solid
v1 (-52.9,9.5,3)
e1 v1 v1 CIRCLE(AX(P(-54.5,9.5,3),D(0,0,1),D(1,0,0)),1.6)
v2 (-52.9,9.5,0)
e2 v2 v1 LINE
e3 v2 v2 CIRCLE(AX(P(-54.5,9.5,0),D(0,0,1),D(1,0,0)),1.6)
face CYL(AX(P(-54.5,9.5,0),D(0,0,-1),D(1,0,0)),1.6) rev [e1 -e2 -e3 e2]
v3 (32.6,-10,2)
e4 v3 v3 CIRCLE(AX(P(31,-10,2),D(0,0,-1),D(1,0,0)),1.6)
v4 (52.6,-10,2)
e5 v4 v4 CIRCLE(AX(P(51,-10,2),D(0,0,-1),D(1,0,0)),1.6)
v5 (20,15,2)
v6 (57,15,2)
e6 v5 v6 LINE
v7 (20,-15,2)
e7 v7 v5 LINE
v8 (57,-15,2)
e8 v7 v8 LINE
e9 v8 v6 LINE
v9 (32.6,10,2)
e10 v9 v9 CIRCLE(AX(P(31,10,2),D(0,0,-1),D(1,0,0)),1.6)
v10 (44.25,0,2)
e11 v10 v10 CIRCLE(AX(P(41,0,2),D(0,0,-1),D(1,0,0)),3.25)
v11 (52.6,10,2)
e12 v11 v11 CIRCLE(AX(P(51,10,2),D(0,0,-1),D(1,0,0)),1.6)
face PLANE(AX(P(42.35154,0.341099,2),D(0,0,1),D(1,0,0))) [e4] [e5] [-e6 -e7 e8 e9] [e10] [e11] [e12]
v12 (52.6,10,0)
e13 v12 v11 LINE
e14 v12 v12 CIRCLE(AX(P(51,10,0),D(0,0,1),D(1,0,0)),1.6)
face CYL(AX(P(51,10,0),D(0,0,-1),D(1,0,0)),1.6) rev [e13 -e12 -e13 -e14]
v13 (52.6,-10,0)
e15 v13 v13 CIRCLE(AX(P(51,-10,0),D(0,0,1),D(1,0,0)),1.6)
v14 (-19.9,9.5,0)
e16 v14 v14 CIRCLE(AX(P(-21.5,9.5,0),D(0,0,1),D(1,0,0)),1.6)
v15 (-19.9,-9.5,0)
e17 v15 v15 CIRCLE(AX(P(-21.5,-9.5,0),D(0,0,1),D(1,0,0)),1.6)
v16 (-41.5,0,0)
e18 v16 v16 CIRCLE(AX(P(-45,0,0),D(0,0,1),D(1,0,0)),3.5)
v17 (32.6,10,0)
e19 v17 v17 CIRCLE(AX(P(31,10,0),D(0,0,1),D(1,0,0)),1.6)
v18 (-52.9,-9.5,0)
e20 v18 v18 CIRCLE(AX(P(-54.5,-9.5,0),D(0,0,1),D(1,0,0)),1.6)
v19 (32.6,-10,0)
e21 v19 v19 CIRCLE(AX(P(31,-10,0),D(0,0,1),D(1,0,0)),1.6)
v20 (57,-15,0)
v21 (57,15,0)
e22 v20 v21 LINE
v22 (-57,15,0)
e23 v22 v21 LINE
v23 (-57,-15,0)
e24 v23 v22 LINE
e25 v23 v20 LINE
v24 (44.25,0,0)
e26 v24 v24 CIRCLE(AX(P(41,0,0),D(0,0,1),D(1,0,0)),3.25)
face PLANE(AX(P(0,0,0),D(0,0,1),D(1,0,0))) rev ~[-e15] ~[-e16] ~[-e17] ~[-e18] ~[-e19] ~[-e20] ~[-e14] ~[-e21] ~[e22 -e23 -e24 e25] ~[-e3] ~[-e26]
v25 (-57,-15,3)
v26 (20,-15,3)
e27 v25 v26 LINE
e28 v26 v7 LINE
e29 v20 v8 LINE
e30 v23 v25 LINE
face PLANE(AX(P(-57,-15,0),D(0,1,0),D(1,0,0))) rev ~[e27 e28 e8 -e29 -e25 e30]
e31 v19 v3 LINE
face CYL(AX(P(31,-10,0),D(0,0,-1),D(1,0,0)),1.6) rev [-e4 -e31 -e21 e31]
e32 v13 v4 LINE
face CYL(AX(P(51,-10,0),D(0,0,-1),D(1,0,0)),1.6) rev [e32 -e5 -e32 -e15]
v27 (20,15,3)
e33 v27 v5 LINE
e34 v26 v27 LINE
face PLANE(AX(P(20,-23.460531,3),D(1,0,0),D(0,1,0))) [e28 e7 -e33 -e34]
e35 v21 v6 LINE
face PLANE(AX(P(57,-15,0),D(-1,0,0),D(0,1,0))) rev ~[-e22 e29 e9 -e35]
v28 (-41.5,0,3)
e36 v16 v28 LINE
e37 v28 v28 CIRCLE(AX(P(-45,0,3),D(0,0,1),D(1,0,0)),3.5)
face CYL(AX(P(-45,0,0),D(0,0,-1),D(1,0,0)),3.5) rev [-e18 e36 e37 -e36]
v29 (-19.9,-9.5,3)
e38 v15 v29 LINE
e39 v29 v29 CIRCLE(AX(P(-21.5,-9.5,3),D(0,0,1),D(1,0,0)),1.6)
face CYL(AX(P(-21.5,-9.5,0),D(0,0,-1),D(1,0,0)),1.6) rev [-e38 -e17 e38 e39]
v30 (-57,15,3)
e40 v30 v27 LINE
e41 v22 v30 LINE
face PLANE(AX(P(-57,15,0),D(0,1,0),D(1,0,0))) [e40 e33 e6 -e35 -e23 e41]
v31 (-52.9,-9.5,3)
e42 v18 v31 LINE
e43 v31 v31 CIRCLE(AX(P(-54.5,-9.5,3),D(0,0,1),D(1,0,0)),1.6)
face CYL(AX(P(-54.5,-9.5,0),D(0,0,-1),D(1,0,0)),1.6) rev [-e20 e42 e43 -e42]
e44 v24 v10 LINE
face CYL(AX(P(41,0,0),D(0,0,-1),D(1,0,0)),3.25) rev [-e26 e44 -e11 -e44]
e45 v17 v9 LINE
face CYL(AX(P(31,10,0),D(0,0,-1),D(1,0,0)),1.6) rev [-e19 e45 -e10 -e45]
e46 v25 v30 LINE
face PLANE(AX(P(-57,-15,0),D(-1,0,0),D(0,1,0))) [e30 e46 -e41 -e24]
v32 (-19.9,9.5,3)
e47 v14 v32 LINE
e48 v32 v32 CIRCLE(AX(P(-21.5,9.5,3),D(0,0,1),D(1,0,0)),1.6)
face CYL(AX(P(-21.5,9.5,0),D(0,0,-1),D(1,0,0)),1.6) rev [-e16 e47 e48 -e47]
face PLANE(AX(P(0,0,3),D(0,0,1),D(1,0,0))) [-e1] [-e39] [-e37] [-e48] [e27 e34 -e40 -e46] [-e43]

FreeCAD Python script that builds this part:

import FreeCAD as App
import Part
import Sketcher
from FreeCAD import Vector
Q = App.Units.Quantity


def add_polygon(sketch, points):
    """Adds a closed chain of lines whose ends are joined by coincident constraints."""
    first, n = sketch.GeometryCount, len(points)
    for a, b in zip(points, points[1:] + points[:1]):
        sketch.addGeometry(Part.LineSegment(App.Vector(*a, 0), App.Vector(*b, 0)), False)
    for i in range(n):
        sketch.addConstraint(Sketcher.Constraint("Coincident", first + i, 2, first + (i + 1) % n, 1))

doc = App.newDocument("Part")
body = doc.addObject("PartDesign::Body", "Body")

# Sketch on XY plane
sketch1 = body.newObject("Sketcher::SketchObject", "Sketch")
sketch1.AttachmentSupport = (doc.getObject("XY_Plane"), [""])
sketch1.MapMode = "FlatFace"
add_polygon(sketch1, [(-57, 15), (-57, -15), (57, -15), (57, 15)])  # lines 0-3
sketch1.addGeometry(Part.Circle(Vector(-54.5, -9.5, 0), Vector(0, 0, 1), 1.6), False)  # 4
sketch1.addGeometry(Part.Circle(Vector(-21.5, -9.5, 0), Vector(0, 0, 1), 1.6), False)  # 5
sketch1.addGeometry(Part.Circle(Vector(31, -10, 0), Vector(0, 0, 1), 1.6), False)  # 6
sketch1.addGeometry(Part.Circle(Vector(51, -10, 0), Vector(0, 0, 1), 1.6), False)  # 7
sketch1.addGeometry(Part.Circle(Vector(-45, 0, 0), Vector(0, 0, 1), 3.5), False)  # 8
sketch1.addGeometry(Part.Circle(Vector(-54.5, 9.5, 0), Vector(0, 0, 1), 1.6), False)  # 9
sketch1.addGeometry(Part.Circle(Vector(-21.5, 9.5, 0), Vector(0, 0, 1), 1.6), False)  # 10
sketch1.addGeometry(Part.Circle(Vector(41, 0, 0), Vector(0, 0, 1), 3.25), False)  # 11
sketch1.addGeometry(Part.Circle(Vector(31, 10, 0), Vector(0, 0, 1), 1.6), False)  # 12
sketch1.addGeometry(Part.Circle(Vector(51, 10, 0), Vector(0, 0, 1), 1.6), False)  # 13
sketch1.addConstraint([
    Sketcher.Constraint("Vertical", 0),
    Sketcher.Constraint("Horizontal", 1),
    Sketcher.Constraint("Vertical", 2),
    Sketcher.Constraint("Horizontal", 3),
    Sketcher.Constraint("Equal", 4, 5),
    Sketcher.Constraint("Equal", 5, 6),
    Sketcher.Constraint("Equal", 6, 7),
    Sketcher.Constraint("Equal", 7, 9),
    Sketcher.Constraint("Equal", 9, 10),
    Sketcher.Constraint("Equal", 10, 12),
    Sketcher.Constraint("Equal", 12, 13),
    Sketcher.Constraint("Symmetric", 0, 2, 2, 2, -1, 1),
    Sketcher.Constraint("Symmetric", 4, 3, 9, 3, -1),
    Sketcher.Constraint("Symmetric", 5, 3, 10, 3, -1),
    Sketcher.Constraint("Symmetric", 6, 3, 12, 3, -1),
    Sketcher.Constraint("Symmetric", 7, 3, 13, 3, -1),
    Sketcher.Constraint("PointOnObject", 8, 3, -1),
    Sketcher.Constraint("PointOnObject", 11, 3, -1),
    Sketcher.Constraint("Horizontal", 4, 3, 5, 3),
    Sketcher.Constraint("Horizontal", 6, 3, 7, 3),
    Sketcher.Constraint("Diameter", 8, Q("7 mm")),
    Sketcher.Constraint("Diameter", 4, Q("3.2 mm")),
    Sketcher.Constraint("Diameter", 11, Q("6.5 mm")),
    Sketcher.Constraint("DistanceX", 1, 1, 1, 2, Q("114 mm")),
    Sketcher.Constraint("DistanceY", 0, 2, 0, 1, Q("30 mm")),
    Sketcher.Constraint("DistanceX", -1, 1, 6, 3, Q("31 mm")),
    Sketcher.Constraint("DistanceY", 6, 3, -1, 1, Q("10 mm")),
    Sketcher.Constraint("DistanceX", -1, 1, 7, 3, Q("51 mm")),
    Sketcher.Constraint("DistanceX", 8, 3, -1, 1, Q("45 mm")),
    Sketcher.Constraint("DistanceX", -1, 1, 11, 3, Q("41 mm")),
    Sketcher.Constraint("DistanceX", 4, 3, 5, 3, Q("33 mm")),
    Sketcher.Constraint("DistanceY", 4, 3, 9, 3, Q("19 mm")),
    Sketcher.Constraint("DistanceX", 4, 3, -1, 1, Q("54.5 mm")),
])
pad1 = body.newObject("PartDesign::Pad", "Pad")
pad1.Profile = sketch1
pad1.Length = 3

# Sketch on XY plane
sketch2 = body.newObject("Sketcher::SketchObject", "Sketch001")
sketch2.AttachmentSupport = (doc.getObject("XY_Plane"), [""])
sketch2.MapMode = "FlatFace"
sketch2.AttachmentOffset = App.Placement(Vector(0, 0, 3), App.Rotation())
add_polygon(sketch2, [(20, 24.142729), (20, -23.460531), (64.70308, -23.460531), (64.70308, 24.142729)])  # lines 0-3
sketch2.addConstraint([
    Sketcher.Constraint("Vertical", 0),
    Sketcher.Constraint("Horizontal", 1),
    Sketcher.Constraint("Vertical", 2),
    Sketcher.Constraint("Horizontal", 3),
    Sketcher.Constraint("DistanceX", -1, 1, 0, 2, Q("20 mm")),
    Sketcher.Constraint("DistanceX", 1, 1, 1, 2, Q("44.703079 mm")),
    Sketcher.Constraint("DistanceY", 0, 2, 0, 1, Q("47.60326 mm")),
    Sketcher.Constraint("DistanceY", 0, 2, -1, 1, Q("23.460531 mm")),
])
pocket1 = body.newObject("PartDesign::Pocket", "Pocket")
pocket1.Profile = sketch2
pocket1.Length = 1

doc.recompute()
